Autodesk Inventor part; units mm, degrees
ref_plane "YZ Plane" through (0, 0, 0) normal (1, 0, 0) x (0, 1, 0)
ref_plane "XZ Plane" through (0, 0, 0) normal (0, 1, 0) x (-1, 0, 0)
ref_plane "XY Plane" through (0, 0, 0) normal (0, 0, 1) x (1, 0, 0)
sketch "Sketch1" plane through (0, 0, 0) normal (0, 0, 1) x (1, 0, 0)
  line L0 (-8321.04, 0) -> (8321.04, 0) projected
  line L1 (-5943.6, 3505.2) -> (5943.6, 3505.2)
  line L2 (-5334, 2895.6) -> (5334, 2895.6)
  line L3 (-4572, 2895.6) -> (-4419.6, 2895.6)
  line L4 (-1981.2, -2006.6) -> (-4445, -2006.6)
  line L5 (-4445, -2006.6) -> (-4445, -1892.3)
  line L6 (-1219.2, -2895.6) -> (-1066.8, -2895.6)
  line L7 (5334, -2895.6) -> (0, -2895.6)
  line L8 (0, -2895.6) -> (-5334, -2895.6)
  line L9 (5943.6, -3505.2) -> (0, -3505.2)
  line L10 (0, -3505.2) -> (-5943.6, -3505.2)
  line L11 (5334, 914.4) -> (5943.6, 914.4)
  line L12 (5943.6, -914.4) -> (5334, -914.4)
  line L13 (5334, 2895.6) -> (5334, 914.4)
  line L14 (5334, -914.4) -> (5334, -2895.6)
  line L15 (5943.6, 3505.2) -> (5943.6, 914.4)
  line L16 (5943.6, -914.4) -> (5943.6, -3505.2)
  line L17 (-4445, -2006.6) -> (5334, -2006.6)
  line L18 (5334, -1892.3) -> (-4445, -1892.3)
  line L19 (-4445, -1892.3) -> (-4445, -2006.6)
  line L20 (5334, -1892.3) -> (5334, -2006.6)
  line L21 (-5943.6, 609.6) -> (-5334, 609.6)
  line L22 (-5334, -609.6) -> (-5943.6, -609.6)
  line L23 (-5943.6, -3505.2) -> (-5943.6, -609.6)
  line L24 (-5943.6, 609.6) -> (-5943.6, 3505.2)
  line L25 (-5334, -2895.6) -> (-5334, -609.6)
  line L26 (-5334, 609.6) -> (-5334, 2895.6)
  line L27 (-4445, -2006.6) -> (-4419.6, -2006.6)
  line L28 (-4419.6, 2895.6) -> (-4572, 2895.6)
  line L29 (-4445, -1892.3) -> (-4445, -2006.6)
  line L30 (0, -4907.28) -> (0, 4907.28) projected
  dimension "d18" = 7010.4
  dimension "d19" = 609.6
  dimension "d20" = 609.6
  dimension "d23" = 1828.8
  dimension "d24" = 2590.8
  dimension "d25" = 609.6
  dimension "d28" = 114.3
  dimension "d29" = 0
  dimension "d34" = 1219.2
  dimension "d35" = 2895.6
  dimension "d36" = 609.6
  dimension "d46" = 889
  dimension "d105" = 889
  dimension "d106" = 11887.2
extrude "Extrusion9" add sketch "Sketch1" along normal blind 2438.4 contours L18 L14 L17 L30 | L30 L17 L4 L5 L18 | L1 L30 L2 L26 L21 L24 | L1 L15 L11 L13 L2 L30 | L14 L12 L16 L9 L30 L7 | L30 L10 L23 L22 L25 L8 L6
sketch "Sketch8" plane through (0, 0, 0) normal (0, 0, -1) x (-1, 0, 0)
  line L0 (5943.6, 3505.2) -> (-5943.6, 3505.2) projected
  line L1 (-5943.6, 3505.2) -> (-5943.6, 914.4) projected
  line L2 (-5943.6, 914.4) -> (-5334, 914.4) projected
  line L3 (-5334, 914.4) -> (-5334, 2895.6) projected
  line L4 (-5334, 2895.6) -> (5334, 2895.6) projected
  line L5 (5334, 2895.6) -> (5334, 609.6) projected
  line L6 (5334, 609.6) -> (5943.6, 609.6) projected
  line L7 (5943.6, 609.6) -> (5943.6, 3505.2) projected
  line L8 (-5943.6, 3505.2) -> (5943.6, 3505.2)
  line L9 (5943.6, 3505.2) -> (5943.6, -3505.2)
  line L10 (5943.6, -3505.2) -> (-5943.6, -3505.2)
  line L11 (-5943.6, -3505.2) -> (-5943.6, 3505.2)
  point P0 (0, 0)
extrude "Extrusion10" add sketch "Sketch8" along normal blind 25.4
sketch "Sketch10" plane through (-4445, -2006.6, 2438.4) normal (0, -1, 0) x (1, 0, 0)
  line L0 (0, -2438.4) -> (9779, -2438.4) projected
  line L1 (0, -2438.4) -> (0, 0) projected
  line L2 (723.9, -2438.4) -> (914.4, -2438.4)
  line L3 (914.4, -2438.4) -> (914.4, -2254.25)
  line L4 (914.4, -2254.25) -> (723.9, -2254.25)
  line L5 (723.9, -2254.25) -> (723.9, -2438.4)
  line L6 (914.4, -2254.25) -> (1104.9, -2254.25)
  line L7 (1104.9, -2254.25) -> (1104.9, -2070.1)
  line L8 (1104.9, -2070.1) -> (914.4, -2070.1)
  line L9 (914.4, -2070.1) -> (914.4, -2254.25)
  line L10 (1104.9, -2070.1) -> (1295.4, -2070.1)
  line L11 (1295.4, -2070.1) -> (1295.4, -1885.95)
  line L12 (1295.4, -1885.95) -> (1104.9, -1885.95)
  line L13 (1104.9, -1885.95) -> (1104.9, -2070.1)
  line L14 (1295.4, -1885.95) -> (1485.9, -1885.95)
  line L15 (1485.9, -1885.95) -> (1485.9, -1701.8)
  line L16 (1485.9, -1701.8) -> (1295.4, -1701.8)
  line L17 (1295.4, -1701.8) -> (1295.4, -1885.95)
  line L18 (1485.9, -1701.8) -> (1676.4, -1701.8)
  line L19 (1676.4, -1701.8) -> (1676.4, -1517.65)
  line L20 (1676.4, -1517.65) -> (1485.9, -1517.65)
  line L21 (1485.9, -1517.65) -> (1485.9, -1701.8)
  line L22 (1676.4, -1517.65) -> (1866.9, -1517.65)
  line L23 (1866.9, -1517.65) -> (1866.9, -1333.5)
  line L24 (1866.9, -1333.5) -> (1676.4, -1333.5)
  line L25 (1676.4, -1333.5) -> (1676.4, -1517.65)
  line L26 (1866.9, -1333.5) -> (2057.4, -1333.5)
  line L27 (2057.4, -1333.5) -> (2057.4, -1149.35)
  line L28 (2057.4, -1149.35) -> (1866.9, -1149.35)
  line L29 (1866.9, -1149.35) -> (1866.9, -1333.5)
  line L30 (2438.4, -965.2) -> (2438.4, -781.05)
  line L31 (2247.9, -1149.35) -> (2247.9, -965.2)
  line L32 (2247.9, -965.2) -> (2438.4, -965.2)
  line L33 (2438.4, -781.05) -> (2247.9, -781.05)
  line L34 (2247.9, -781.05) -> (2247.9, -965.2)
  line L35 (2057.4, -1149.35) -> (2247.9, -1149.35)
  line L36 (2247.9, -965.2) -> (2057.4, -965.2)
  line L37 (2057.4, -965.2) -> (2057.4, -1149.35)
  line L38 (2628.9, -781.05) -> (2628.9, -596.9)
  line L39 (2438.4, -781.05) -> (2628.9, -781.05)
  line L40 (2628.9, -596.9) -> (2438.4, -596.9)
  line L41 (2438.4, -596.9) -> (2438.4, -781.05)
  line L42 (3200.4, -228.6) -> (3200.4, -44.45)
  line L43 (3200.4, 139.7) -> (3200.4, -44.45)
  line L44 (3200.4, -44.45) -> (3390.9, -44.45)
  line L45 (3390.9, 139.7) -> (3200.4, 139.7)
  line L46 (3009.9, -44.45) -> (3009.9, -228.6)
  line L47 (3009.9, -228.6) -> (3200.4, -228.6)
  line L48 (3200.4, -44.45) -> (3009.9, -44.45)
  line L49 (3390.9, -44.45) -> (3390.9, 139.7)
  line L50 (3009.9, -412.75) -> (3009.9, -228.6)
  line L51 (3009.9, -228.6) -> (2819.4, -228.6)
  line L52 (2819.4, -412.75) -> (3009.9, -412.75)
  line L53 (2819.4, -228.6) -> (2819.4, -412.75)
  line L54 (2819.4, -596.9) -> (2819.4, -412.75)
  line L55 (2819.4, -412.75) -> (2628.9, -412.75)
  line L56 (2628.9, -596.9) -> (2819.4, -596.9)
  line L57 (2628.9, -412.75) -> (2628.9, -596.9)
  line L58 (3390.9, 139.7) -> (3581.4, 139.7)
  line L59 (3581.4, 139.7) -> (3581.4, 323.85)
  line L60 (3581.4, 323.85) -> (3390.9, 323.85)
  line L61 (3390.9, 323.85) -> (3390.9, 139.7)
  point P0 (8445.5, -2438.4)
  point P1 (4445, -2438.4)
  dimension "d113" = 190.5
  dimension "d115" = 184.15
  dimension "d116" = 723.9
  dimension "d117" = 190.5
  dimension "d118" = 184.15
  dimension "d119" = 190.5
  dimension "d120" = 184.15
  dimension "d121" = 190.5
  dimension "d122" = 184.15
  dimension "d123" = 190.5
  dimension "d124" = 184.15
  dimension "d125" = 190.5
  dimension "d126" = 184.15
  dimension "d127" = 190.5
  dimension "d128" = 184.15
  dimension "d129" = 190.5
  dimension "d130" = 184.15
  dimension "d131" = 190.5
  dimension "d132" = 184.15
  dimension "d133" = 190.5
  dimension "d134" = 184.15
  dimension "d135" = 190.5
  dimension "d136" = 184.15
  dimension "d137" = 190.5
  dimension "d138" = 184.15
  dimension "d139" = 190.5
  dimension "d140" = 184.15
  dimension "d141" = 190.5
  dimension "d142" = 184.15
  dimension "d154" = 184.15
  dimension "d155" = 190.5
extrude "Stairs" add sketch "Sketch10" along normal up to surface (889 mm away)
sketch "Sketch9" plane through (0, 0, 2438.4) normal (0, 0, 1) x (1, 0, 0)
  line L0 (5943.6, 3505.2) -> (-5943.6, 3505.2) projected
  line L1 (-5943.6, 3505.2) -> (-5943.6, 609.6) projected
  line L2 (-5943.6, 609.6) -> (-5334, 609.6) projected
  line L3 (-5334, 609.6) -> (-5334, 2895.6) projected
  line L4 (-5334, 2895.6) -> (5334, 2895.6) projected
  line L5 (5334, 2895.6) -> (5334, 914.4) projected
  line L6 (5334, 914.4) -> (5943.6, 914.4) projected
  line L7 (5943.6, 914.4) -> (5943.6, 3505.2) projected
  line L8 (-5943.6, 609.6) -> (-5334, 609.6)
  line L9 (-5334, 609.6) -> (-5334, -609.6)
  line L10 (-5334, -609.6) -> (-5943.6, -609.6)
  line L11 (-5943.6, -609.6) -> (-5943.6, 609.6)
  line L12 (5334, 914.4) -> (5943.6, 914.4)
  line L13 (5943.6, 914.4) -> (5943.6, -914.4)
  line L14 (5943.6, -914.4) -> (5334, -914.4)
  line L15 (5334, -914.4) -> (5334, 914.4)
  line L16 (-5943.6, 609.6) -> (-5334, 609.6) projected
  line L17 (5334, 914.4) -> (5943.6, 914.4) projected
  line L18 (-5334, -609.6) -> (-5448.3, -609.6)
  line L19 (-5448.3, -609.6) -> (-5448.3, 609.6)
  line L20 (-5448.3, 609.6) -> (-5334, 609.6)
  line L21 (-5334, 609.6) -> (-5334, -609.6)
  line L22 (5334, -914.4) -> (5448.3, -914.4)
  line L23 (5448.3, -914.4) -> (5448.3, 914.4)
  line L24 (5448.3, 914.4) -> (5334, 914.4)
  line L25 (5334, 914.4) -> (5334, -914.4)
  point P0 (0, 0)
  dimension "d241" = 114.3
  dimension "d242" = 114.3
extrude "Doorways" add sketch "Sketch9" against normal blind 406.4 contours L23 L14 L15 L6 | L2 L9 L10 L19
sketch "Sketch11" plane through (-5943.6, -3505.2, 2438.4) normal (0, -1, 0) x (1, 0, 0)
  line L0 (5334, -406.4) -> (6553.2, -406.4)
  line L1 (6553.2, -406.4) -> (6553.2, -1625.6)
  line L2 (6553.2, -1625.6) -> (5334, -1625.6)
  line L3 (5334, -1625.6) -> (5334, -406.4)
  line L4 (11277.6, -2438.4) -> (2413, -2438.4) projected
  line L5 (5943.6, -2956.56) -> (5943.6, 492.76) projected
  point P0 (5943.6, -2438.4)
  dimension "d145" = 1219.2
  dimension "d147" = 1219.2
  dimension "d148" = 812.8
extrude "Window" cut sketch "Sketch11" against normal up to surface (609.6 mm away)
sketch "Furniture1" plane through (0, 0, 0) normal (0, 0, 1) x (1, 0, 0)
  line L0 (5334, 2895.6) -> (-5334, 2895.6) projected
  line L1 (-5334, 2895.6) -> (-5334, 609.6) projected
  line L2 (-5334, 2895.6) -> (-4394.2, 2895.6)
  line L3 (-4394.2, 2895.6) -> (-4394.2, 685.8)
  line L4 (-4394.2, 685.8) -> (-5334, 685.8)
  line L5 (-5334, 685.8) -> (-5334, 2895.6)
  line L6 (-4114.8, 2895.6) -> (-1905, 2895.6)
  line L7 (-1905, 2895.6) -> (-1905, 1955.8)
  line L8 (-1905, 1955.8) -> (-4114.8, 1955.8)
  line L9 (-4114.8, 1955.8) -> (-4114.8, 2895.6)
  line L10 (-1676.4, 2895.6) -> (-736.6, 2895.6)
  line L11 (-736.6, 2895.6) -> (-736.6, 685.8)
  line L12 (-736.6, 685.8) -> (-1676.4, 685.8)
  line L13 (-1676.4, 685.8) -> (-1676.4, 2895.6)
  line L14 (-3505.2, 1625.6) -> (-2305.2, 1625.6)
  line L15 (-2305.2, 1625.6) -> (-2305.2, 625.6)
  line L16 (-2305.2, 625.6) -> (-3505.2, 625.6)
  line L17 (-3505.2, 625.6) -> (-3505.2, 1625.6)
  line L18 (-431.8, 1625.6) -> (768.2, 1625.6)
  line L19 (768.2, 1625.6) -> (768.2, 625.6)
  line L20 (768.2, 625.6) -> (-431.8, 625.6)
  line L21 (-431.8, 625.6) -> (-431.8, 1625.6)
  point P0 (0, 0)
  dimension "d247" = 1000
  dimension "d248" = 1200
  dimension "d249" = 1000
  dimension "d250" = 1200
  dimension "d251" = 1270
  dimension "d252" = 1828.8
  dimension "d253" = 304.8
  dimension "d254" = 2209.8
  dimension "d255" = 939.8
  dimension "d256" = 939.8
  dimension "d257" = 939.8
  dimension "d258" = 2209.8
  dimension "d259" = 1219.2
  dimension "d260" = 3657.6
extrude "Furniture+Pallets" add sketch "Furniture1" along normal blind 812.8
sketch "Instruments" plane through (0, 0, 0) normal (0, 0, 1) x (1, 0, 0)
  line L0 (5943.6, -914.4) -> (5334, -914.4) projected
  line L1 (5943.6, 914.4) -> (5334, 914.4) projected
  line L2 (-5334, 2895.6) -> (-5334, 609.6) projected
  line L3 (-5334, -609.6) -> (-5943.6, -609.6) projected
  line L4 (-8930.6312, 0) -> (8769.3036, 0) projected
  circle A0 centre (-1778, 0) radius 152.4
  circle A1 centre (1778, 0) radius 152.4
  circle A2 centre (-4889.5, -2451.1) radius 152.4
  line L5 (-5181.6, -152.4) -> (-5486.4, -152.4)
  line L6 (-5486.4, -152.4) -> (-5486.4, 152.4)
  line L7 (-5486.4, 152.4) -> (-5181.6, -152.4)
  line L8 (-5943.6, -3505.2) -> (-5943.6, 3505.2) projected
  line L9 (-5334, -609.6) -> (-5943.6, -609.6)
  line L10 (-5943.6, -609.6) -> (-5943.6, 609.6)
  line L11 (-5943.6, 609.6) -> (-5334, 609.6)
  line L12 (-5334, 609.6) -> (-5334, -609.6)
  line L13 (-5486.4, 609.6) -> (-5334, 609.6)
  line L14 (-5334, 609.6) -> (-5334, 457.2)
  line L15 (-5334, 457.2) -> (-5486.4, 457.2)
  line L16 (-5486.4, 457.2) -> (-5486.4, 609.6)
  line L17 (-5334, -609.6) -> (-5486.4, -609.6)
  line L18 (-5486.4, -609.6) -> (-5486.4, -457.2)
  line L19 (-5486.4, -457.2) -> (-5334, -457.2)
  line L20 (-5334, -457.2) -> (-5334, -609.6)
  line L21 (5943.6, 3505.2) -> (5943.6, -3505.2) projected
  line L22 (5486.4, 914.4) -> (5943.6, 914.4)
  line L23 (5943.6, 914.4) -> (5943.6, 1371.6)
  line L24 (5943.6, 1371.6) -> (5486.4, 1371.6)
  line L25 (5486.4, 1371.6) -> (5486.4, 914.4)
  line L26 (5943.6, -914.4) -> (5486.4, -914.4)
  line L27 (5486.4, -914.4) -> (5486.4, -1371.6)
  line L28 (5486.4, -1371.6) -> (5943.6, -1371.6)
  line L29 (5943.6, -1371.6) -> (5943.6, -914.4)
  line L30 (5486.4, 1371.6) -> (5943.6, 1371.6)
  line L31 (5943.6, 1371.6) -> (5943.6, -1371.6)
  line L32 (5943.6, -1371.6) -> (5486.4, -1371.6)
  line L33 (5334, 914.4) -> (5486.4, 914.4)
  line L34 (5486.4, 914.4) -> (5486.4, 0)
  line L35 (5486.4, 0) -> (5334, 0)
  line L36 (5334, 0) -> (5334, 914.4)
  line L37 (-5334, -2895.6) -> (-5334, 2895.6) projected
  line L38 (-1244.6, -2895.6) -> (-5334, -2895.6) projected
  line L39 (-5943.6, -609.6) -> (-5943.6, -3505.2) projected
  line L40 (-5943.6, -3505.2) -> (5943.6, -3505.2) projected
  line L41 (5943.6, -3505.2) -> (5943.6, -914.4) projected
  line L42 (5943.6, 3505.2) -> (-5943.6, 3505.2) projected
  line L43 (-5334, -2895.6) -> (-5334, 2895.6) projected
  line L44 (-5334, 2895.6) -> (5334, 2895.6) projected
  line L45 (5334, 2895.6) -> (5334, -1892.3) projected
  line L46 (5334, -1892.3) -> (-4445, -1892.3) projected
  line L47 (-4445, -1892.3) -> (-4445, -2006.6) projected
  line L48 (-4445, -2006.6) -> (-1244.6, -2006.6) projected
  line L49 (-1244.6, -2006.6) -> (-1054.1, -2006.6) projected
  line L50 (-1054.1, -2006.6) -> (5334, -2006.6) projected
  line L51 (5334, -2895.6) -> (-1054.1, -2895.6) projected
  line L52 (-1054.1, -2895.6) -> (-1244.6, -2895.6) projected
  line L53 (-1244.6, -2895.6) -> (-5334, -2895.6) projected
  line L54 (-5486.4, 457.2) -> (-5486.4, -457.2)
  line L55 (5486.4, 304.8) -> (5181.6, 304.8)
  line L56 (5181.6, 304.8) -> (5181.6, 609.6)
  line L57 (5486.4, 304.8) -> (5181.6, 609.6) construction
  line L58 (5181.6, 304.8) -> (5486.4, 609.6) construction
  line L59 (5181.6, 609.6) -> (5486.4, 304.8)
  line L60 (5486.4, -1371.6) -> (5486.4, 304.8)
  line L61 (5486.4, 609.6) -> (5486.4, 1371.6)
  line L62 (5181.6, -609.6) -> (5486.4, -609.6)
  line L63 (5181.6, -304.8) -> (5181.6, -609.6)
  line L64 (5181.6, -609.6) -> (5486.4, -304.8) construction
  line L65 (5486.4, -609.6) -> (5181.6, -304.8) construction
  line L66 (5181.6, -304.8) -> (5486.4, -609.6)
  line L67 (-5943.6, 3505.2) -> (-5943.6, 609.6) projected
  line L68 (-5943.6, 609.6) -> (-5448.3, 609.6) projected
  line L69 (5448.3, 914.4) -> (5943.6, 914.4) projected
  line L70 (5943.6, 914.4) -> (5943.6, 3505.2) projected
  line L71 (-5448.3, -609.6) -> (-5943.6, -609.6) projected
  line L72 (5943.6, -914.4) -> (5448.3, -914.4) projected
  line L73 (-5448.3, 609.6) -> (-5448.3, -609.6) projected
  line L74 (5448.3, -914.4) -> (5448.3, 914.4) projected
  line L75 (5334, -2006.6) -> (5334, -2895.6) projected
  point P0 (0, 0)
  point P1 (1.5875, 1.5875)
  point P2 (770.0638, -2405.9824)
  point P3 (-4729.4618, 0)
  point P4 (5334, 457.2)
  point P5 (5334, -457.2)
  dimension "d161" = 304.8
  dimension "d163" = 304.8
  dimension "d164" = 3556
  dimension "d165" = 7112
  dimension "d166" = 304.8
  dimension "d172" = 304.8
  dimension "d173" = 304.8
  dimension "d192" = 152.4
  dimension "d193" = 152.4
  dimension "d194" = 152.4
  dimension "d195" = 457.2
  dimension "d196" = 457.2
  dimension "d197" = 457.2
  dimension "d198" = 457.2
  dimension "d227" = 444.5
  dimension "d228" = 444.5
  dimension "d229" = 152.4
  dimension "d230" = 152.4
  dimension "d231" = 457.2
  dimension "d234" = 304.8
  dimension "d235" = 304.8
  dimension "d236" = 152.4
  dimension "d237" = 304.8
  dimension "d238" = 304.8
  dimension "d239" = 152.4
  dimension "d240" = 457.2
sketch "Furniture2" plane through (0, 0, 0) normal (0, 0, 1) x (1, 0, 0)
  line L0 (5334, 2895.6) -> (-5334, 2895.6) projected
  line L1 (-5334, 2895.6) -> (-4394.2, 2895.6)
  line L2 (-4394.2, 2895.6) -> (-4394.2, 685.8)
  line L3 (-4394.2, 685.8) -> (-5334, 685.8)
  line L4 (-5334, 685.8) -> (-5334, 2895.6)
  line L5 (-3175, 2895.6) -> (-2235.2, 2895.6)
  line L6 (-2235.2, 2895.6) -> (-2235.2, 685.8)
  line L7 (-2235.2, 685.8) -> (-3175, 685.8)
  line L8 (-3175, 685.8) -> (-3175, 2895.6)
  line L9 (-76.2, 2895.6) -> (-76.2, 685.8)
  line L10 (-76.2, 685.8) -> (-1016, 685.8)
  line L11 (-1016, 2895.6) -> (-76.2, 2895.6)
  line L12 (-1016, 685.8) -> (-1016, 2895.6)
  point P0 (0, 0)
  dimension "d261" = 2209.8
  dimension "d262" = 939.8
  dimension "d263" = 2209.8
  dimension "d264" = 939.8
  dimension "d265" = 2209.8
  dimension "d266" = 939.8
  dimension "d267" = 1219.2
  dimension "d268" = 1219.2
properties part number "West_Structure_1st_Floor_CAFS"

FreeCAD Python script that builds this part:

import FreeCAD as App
import Part
import Sketcher

V = App.Vector
Q = App.Units.Quantity


def add_polygon(sketch, points):
    """Adds a closed chain of lines whose ends are joined by coincident constraints."""
    first, n = sketch.GeometryCount, len(points)
    for a, b in zip(points, points[1:] + points[:1]):
        sketch.addGeometry(Part.LineSegment(App.Vector(*a, 0), App.Vector(*b, 0)), False)
    for i in range(n):
        sketch.addConstraint(Sketcher.Constraint("Coincident", first + i, 2, first + (i + 1) % n, 1))

doc = App.newDocument("Part")
body = doc.addObject("PartDesign::Body", "Body")
body.AllowCompound = True

# Sketch on XY plane
sketch1 = doc.addObject("Sketcher::SketchObject", "Sketch")
body.addObject(sketch1)
sketch1.AttachmentSupport = (doc.XY_Plane, [""])
sketch1.MapMode = "FlatFace"
add_polygon(sketch1, [(5334, -1892), (-4445, -1892), (-4445, -2007), (5334, -2007), (5334, -2896), (-5334, -2896), (-5334, -610), (-5944, -610), (-5944, -3505), (5944, -3505), (5944, -914), (5334, -914)])  # lines 0-11
add_polygon(sketch1, [(-5944, 3505), (-5944, 610), (-5334, 610), (-5334, 2896), (5334, 2896), (5334, 914), (5944, 914), (5944, 3505)])  # lines 12-19
sketch1.addConstraint([
    Sketcher.Constraint("Horizontal", 0),
    Sketcher.Constraint("Vertical", 1),
    Sketcher.Constraint("Horizontal", 2),
    Sketcher.Constraint("Vertical", 3),
    Sketcher.Constraint("Horizontal", 4),
    Sketcher.Constraint("Vertical", 5),
    Sketcher.Constraint("Horizontal", 6),
    Sketcher.Constraint("Vertical", 7),
    Sketcher.Constraint("Horizontal", 8),
    Sketcher.Constraint("Vertical", 9),
    Sketcher.Constraint("Horizontal", 10),
    Sketcher.Constraint("Vertical", 11),
    Sketcher.Constraint("Vertical", 12),
    Sketcher.Constraint("Horizontal", 13),
    Sketcher.Constraint("Vertical", 14),
    Sketcher.Constraint("Horizontal", 15),
    Sketcher.Constraint("Vertical", 16),
    Sketcher.Constraint("Horizontal", 17),
    Sketcher.Constraint("Vertical", 18),
    Sketcher.Constraint("Horizontal", 19),
    Sketcher.Constraint("Symmetric", 3, 2, 14, 2, -1, 1),
    Sketcher.Constraint("Symmetric", 7, 2, 18, 2, -1, 1),
    Sketcher.Constraint("Symmetric", 6, 2, 12, 2, -1),
    Sketcher.Constraint("Symmetric", 10, 2, 16, 2, -1),
    Sketcher.Constraint("Vertical", 3, 2, 10, 2),
    Sketcher.Constraint("Vertical", 5, 2, 13, 2),
    Sketcher.Constraint("Vertical", 9, 2, 17, 2),
    Sketcher.Constraint("DistanceX", 6, 2, 6, 1, Q("24 in")),
    Sketcher.Constraint("DistanceX", 8, 1, 8, 2, Q("468 in")),
    Sketcher.Constraint("DistanceY", 3, 2, 3, 1, Q("35 in")),
    Sketcher.Constraint("DistanceY", 7, 2, 7, 1, Q("114 in")),
    Sketcher.Constraint("DistanceY", 9, 1, 9, 2, Q("102 in")),
    Sketcher.Constraint("DistanceY", 1, 2, 1, 1, Q("4.5 in")),
    Sketcher.Constraint("DistanceY", 3, 2, -1, 1, Q("114 in")),
    Sketcher.Constraint("DistanceY", 5, 2, -1, 1, Q("24 in")),
    Sketcher.Constraint("DistanceX", 4, 2, 1, 2, Q("35 in")),
])
pad1 = doc.addObject("PartDesign::Pad", "Pad")
body.addObject(pad1)
pad1.Profile = sketch1
pad1.Length = Q("96 in")

# Sketch on XY plane
sketch2 = doc.addObject("Sketcher::SketchObject", "Sketch001")
body.addObject(sketch2)
sketch2.AttachmentSupport = (doc.XY_Plane, [""])
sketch2.MapMode = "FlatFace"
add_polygon(sketch2, [(-5944, 3505), (5944, 3505), (5944, -3505), (-5944, -3505)])  # lines 0-3
sketch2.addConstraint([
    Sketcher.Constraint("Horizontal", 0),
    Sketcher.Constraint("Vertical", 1),
    Sketcher.Constraint("Horizontal", 2),
    Sketcher.Constraint("Vertical", 3),
    Sketcher.Constraint("Symmetric", 0, 2, 2, 2, -1, 1),
    Sketcher.Constraint("DistanceX", 0, 1, 0, 2, Q("468 in")),
    Sketcher.Constraint("DistanceY", 1, 2, 1, 1, Q("276 in")),
])
pad2 = doc.addObject("PartDesign::Pad", "Pad001")
body.addObject(pad2)
pad2.Profile = sketch2
pad2.Length = Q("1 in")
pad2.Reversed = True

# Sketch on XZ plane
sketch3 = doc.addObject("Sketcher::SketchObject", "Sketch002")
body.addObject(sketch3)
sketch3.AttachmentSupport = (doc.XZ_Plane, [""])
sketch3.MapMode = "FlatFace"
sketch3.AttachmentOffset = App.Placement(V(0, 0, 79 * 25.4), App.Rotation())
add_polygon(sketch3, [(-3721, 184), (-3721, 0), (-3531, 0), (-3531, 184)])  # lines 0-3
add_polygon(sketch3, [(-1054, 2762), (-1054, 2578), (-864, 2578), (-864, 2762)])  # lines 4-7
add_polygon(sketch3, [(-1245, 2578), (-1245, 2394), (-1054, 2394), (-1054, 2578)])  # lines 8-11
add_polygon(sketch3, [(-1435, 2394), (-1435, 2210), (-1245, 2210), (-1245, 2394)])  # lines 12-15
add_polygon(sketch3, [(-1626, 2210), (-1626, 2026), (-1435, 2026), (-1435, 2210)])  # lines 16-19
add_polygon(sketch3, [(-1816, 2026), (-1816, 1842), (-1626, 1842), (-1626, 2026)])  # lines 20-23
add_polygon(sketch3, [(-2007, 1842), (-2007, 1657), (-1816, 1657), (-1816, 1842)])  # lines 24-27
add_polygon(sketch3, [(-2197, 1657), (-2197, 1473), (-2007, 1473), (-2007, 1657)])  # lines 28-31
add_polygon(sketch3, [(-2388, 1473), (-2388, 1289), (-2197, 1289), (-2197, 1473)])  # lines 32-35
add_polygon(sketch3, [(-2578, 1289), (-2578, 1105), (-2388, 1105), (-2388, 1289)])  # lines 36-39
add_polygon(sketch3, [(-2769, 1105), (-2769, 921), (-2578, 921), (-2578, 1105)])  # lines 40-43
add_polygon(sketch3, [(-2959, 921), (-2959, 737), (-2769, 737), (-2769, 921)])  # lines 44-47
add_polygon(sketch3, [(-3150, 737), (-3150, 552), (-2959, 552), (-2959, 737)])  # lines 48-51
add_polygon(sketch3, [(-3340, 552), (-3340, 368), (-3150, 368), (-3150, 552)])  # lines 52-55
add_polygon(sketch3, [(-3531, 368), (-3531, 184), (-3340, 184), (-3340, 368)])  # lines 56-59
sketch3.addConstraint([
    Sketcher.Constraint("Vertical", 0),
    Sketcher.Constraint("Horizontal", 1),
    Sketcher.Constraint("Vertical", 2),
    Sketcher.Constraint("Horizontal", 3),
    Sketcher.Constraint("Vertical", 4),
    Sketcher.Constraint("Horizontal", 5),
    Sketcher.Constraint("Vertical", 6),
    Sketcher.Constraint("Horizontal", 7),
    Sketcher.Constraint("Vertical", 8),
    Sketcher.Constraint("Horizontal", 9),
    Sketcher.Constraint("Vertical", 10),
    Sketcher.Constraint("Horizontal", 11),
    Sketcher.Constraint("Vertical", 12),
    Sketcher.Constraint("Horizontal", 13),
    Sketcher.Constraint("Vertical", 14),
    Sketcher.Constraint("Horizontal", 15),
    Sketcher.Constraint("Vertical", 16),
    Sketcher.Constraint("Horizontal", 17),
    Sketcher.Constraint("Vertical", 18),
    Sketcher.Constraint("Horizontal", 19),
    Sketcher.Constraint("Vertical", 20),
    Sketcher.Constraint("Horizontal", 21),
    Sketcher.Constraint("Vertical", 22),
    Sketcher.Constraint("Horizontal", 23),
    Sketcher.Constraint("Vertical", 24),
    Sketcher.Constraint("Horizontal", 25),
    Sketcher.Constraint("Vertical", 26),
    Sketcher.Constraint("Horizontal", 27),
    Sketcher.Constraint("Vertical", 28),
    Sketcher.Constraint("Horizontal", 29),
    Sketcher.Constraint("Vertical", 30),
    Sketcher.Constraint("Horizontal", 31),
    Sketcher.Constraint("Vertical", 32),
    Sketcher.Constraint("Horizontal", 33),
    Sketcher.Constraint("Vertical", 34),
    Sketcher.Constraint("Horizontal", 35),
    Sketcher.Constraint("Vertical", 36),
    Sketcher.Constraint("Horizontal", 37),
    Sketcher.Constraint("Vertical", 38),
    Sketcher.Constraint("Horizontal", 39),
    Sketcher.Constraint("Vertical", 40),
    Sketcher.Constraint("Horizontal", 41),
    Sketcher.Constraint("Vertical", 42),
    Sketcher.Constraint("Horizontal", 43),
    Sketcher.Constraint("Vertical", 44),
    Sketcher.Constraint("Horizontal", 45),
    Sketcher.Constraint("Vertical", 46),
    Sketcher.Constraint("Horizontal", 47),
    Sketcher.Constraint("Vertical", 48),
    Sketcher.Constraint("Horizontal", 49),
    Sketcher.Constraint("Vertical", 50),
    Sketcher.Constraint("Horizontal", 51),
    Sketcher.Constraint("Vertical", 52),
    Sketcher.Constraint("Horizontal", 53),
    Sketcher.Constraint("Vertical", 54),
    Sketcher.Constraint("Horizontal", 55),
    Sketcher.Constraint("Vertical", 56),
    Sketcher.Constraint("Horizontal", 57),
    Sketcher.Constraint("Vertical", 58),
    Sketcher.Constraint("Horizontal", 59),
    Sketcher.Constraint("Coincident", 10, 2, 4, 2),
    Sketcher.Constraint("Coincident", 14, 2, 8, 2),
    Sketcher.Constraint("Coincident", 18, 2, 12, 2),
    Sketcher.Constraint("Coincident", 22, 2, 16, 2),
    Sketcher.Constraint("Coincident", 26, 2, 20, 2),
    Sketcher.Constraint("Coincident", 30, 2, 24, 2),
    Sketcher.Constraint("Coincident", 34, 2, 28, 2),
    Sketcher.Constraint("Coincident", 38, 2, 32, 2),
    Sketcher.Constraint("Coincident", 42, 2, 36, 2),
    Sketcher.Constraint("Coincident", 46, 2, 40, 2),
    Sketcher.Constraint("Coincident", 50, 2, 44, 2),
    Sketcher.Constraint("Coincident", 54, 2, 48, 2),
    Sketcher.Constraint("Coincident", 56, 2, 2, 2),
    Sketcher.Constraint("Coincident", 58, 2, 52, 2),
    Sketcher.Constraint("PointOnObject", 0, 2, -1),
    Sketcher.Constraint("Equal", 3, 5),
    Sketcher.Constraint("Equal", 7, 9),
    Sketcher.Constraint("Equal", 11, 13),
    Sketcher.Constraint("Equal", 15, 17),
    Sketcher.Constraint("Equal", 19, 21),
    Sketcher.Constraint("Equal", 23, 25),
    Sketcher.Constraint("Equal", 27, 29),
    Sketcher.Constraint("Equal", 31, 33),
    Sketcher.Constraint("Equal", 35, 37),
    Sketcher.Constraint("Equal", 39, 41),
    Sketcher.Constraint("Equal", 43, 45),
    Sketcher.Constraint("Equal", 47, 49),
    Sketcher.Constraint("Equal", 51, 53),
    Sketcher.Constraint("Equal", 55, 57),
    Sketcher.Constraint("Equal", 2, 4),
    Sketcher.Constraint("Equal", 6, 8),
    Sketcher.Constraint("Equal", 10, 12),
    Sketcher.Constraint("Equal", 14, 16),
    Sketcher.Constraint("Equal", 18, 20),
    Sketcher.Constraint("Equal", 22, 24),
    Sketcher.Constraint("Equal", 26, 28),
    Sketcher.Constraint("Equal", 30, 32),
    Sketcher.Constraint("Equal", 34, 36),
    Sketcher.Constraint("Equal", 38, 40),
    Sketcher.Constraint("Equal", 42, 44),
    Sketcher.Constraint("Equal", 46, 48),
    Sketcher.Constraint("Equal", 50, 52),
    Sketcher.Constraint("Equal", 54, 56),
    Sketcher.Constraint("DistanceX", 1, 1, 1, 2, Q("7.5 in")),
    Sketcher.Constraint("DistanceY", 0, 2, 0, 1, Q("7.25 in")),
    Sketcher.Constraint("DistanceX", 1, 2, -1, 1, Q("139 in")),
])
pad3 = doc.addObject("PartDesign::Pad", "Pad002")
body.addObject(pad3)
pad3.Profile = sketch3
pad3.Length = Q("35 in")

# Sketch on XY plane
sketch4 = doc.addObject("Sketcher::SketchObject", "Sketch003")
body.addObject(sketch4)
sketch4.AttachmentSupport = (doc.XY_Plane, [""])
sketch4.MapMode = "FlatFace"
sketch4.AttachmentOffset = App.Placement(V(0, 0, 96 * 25.4), App.Rotation())
add_polygon(sketch4, [(5448, -914), (5448, 914), (5334, 914), (5334, -914)])  # lines 0-3
add_polygon(sketch4, [(-5334, 610), (-5448, 610), (-5448, -610), (-5334, -610)])  # lines 4-7
sketch4.addConstraint([
    Sketcher.Constraint("Vertical", 0),
    Sketcher.Constraint("Horizontal", 1),
    Sketcher.Constraint("Vertical", 2),
    Sketcher.Constraint("Horizontal", 3),
    Sketcher.Constraint("Horizontal", 4),
    Sketcher.Constraint("Vertical", 5),
    Sketcher.Constraint("Horizontal", 6),
    Sketcher.Constraint("Vertical", 7),
    Sketcher.Constraint("Equal", 3, 4),
    Sketcher.Constraint("DistanceX", 1, 2, 1, 1, Q("4.5 in")),
    Sketcher.Constraint("DistanceY", 0, 1, 0, 2, Q("72 in")),
    Sketcher.Constraint("DistanceY", 5, 2, 5, 1, Q("48 in")),
    Sketcher.Constraint("DistanceY", -1, 1, 0, 2, Q("36 in")),
    Sketcher.Constraint("DistanceX", -1, 1, 1, 2, Q("210 in")),
    Sketcher.Constraint("DistanceY", -1, 1, 4, 2, Q("24 in")),
    Sketcher.Constraint("DistanceX", 6, 2, -1, 1, Q("210 in")),
])
pad4 = doc.addObject("PartDesign::Pad", "Pad003")
body.addObject(pad4)
pad4.Profile = sketch4
pad4.Length = Q("16 in")
pad4.Reversed = True

# Sketch on XZ plane
sketch5 = doc.addObject("Sketcher::SketchObject", "Sketch004")
body.addObject(sketch5)
sketch5.AttachmentSupport = (doc.XZ_Plane, [""])
sketch5.MapMode = "FlatFace"
sketch5.AttachmentOffset = App.Placement(V(0, 0, 138 * 25.4), App.Rotation())
add_polygon(sketch5, [(-610, 2032), (-610, 813), (610, 813), (610, 2032)])  # lines 0-3
sketch5.addConstraint([
    Sketcher.Constraint("Vertical", 0),
    Sketcher.Constraint("Horizontal", 1),
    Sketcher.Constraint("Vertical", 2),
    Sketcher.Constraint("Horizontal", 3),
    Sketcher.Constraint("Equal", 3, 0),
    Sketcher.Constraint("DistanceX", 1, 1, 1, 2, Q("48 in")),
    Sketcher.Constraint("DistanceY", -1, 1, 0, 2, Q("32 in")),
    Sketcher.Constraint("DistanceX", 0, 2, -1, 1, Q("24 in")),
])
pocket1 = doc.addObject("PartDesign::Pocket", "Pocket")
body.addObject(pocket1)
pocket1.Profile = sketch5
pocket1.Length = Q("24 in")

# Sketch on XY plane
sketch6 = doc.addObject("Sketcher::SketchObject", "Sketch005")
body.addObject(sketch6)
sketch6.AttachmentSupport = (doc.XY_Plane, [""])
sketch6.MapMode = "FlatFace"
add_polygon(sketch6, [(-737, 686), (-737, 2896), (-1676, 2896), (-1676, 686)])  # lines 0-3
add_polygon(sketch6, [(-4394, 686), (-4394, 2896), (-5334, 2896), (-5334, 686)])  # lines 4-7
add_polygon(sketch6, [(-1905, 1956), (-1905, 2896), (-4115, 2896), (-4115, 1956)])  # lines 8-11
add_polygon(sketch6, [(-2305, 1626), (-3505, 1626), (-3505, 626), (-2305, 626)])  # lines 12-15
add_polygon(sketch6, [(768, 1626), (-432, 1626), (-432, 626), (768, 626)])  # lines 16-19
sketch6.addConstraint([
    Sketcher.Constraint("Vertical", 0),
    Sketcher.Constraint("Horizontal", 1),
    Sketcher.Constraint("Vertical", 2),
    Sketcher.Constraint("Horizontal", 3),
    Sketcher.Constraint("Vertical", 4),
    Sketcher.Constraint("Horizontal", 5),
    Sketcher.Constraint("Vertical", 6),
    Sketcher.Constraint("Horizontal", 7),
    Sketcher.Constraint("Vertical", 8),
    Sketcher.Constraint("Horizontal", 9),
    Sketcher.Constraint("Vertical", 10),
    Sketcher.Constraint("Horizontal", 11),
    Sketcher.Constraint("Horizontal", 12),
    Sketcher.Constraint("Vertical", 13),
    Sketcher.Constraint("Horizontal", 14),
    Sketcher.Constraint("Vertical", 15),
    Sketcher.Constraint("Horizontal", 16),
    Sketcher.Constraint("Vertical", 17),
    Sketcher.Constraint("Horizontal", 18),
    Sketcher.Constraint("Vertical", 19),
    Sketcher.Constraint("Horizontal", 1, 2, 4, 2),
    Sketcher.Constraint("Horizontal", 3, 2, 6, 2),
    Sketcher.Constraint("Horizontal", 5, 2, 8, 2),
    Sketcher.Constraint("Horizontal", 15, 2, 16, 2),
    Sketcher.Constraint("Horizontal", 14, 2, 17, 2),
    Sketcher.Constraint("Equal", 3, 5),
    Sketcher.Constraint("Equal", 14, 16),
    Sketcher.Constraint("Equal", 11, 0),
    Sketcher.Constraint("Equal", 7, 8),
    Sketcher.Constraint("DistanceX", 1, 2, 1, 1, Q("37 in")),
    Sketcher.Constraint("DistanceX", 9, 2, 9, 1, Q("87 in")),
    Sketcher.Constraint("DistanceX", 4, 2, 0, 2, Q("144 in")),
    Sketcher.Constraint("DistanceX", 5, 2, 9, 2, Q("48 in")),
    Sketcher.Constraint("DistanceY", 7, 2, 12, 2, Q("37 in")),
    Sketcher.Constraint("DistanceX", 13, 2, 2, 2, Q("72 in")),
    Sketcher.Constraint("DistanceX", 3, 2, 16, 2, Q("12 in")),
    Sketcher.Constraint("DistanceX", 12, 2, 12, 1, Q("47.2441 in")),
    Sketcher.Constraint("DistanceX", 0, 2, -1, 1, Q("29 in")),
    Sketcher.Constraint("DistanceY", -1, 1, 0, 2, Q("114 in")),
    Sketcher.Constraint("DistanceY", 13, 2, 13, 1, 1000.0),
])
pad5 = doc.addObject("PartDesign::Pad", "Pad004")
body.addObject(pad5)
pad5.Profile = sketch6
pad5.Length = Q("32 in")

doc.recompute()
